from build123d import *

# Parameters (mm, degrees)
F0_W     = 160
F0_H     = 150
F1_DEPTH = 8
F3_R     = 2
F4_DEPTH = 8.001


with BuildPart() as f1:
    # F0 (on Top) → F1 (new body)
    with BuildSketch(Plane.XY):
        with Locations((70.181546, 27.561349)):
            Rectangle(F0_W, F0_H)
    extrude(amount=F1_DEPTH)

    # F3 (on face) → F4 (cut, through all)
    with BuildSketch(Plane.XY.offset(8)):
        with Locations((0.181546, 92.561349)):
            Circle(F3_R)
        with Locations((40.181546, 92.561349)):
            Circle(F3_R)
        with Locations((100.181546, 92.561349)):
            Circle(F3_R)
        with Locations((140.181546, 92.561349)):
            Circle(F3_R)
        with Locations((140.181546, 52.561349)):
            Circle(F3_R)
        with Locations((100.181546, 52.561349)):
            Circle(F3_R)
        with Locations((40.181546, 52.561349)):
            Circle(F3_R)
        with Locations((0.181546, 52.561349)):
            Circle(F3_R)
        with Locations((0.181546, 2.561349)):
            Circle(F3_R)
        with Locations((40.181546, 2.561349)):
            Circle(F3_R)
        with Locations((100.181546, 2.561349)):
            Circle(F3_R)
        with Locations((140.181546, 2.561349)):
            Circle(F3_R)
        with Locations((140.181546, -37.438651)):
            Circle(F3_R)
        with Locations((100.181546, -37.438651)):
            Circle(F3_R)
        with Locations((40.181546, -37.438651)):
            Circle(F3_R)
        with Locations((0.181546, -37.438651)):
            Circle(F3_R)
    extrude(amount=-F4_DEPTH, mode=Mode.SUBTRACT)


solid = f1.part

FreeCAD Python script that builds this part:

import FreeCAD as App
import Part
import Sketcher
Q = App.Units.Quantity

doc = App.newDocument("Part")
body = doc.addObject("PartDesign::Body", "Body")

# Sketch on XY plane
sketch1 = body.newObject("Sketcher::SketchObject", "Sketch")
sketch1.AttachmentSupport = (doc.getObject("XY_Plane"), [""])
sketch1.MapMode = "FlatFace"
sketch1.addGeometry([
    Part.LineSegment(App.Vector(-9.818454, 102.561349, 0), App.Vector(-9.818454, -47.438651, 0)),
    Part.LineSegment(App.Vector(-9.818454, -47.438651, 0), App.Vector(150.181546, -47.438651, 0)),
    Part.LineSegment(App.Vector(150.181546, -47.438651, 0), App.Vector(150.181546, 102.561349, 0)),
    Part.LineSegment(App.Vector(150.181546, 102.561349, 0), App.Vector(-9.818454, 102.561349, 0)),
], False)
sketch1.addConstraint([
    Sketcher.Constraint("Coincident", 0, 2, 1, 1),
    Sketcher.Constraint("Coincident", 1, 2, 2, 1),
    Sketcher.Constraint("Coincident", 2, 2, 3, 1),
    Sketcher.Constraint("Coincident", 3, 2, 0, 1),
    Sketcher.Constraint("Vertical", 0),
    Sketcher.Constraint("Horizontal", 1),
    Sketcher.Constraint("Vertical", 2),
    Sketcher.Constraint("Horizontal", 3),
    Sketcher.Constraint("DistanceX", 1, 1, 1, 2, Q("160 mm")),
    Sketcher.Constraint("DistanceY", 0, 2, 0, 1, Q("150 mm")),
    Sketcher.Constraint("DistanceY", 0, 2, -1, 1, Q("47.438651 mm")),
    Sketcher.Constraint("DistanceX", 0, 2, -1, 1, Q("9.818454 mm")),
])
pad1 = body.newObject("PartDesign::Pad", "Pad")
pad1.Profile = sketch1
pad1.Length = 8

# Sketch on XY plane
sketch2 = body.newObject("Sketcher::SketchObject", "Sketch001")
sketch2.AttachmentSupport = (doc.getObject("XY_Plane"), [""])
sketch2.MapMode = "FlatFace"
sketch2.AttachmentOffset = App.Placement(App.Vector(0, 0, 8), App.Rotation())
sketch2.addGeometry([
    Part.Circle(App.Vector(0.181546, 92.561349, 0), App.Vector(0, 0, 1), 2),  # 0
    Part.Circle(App.Vector(40.181546, 92.561349, 0), App.Vector(0, 0, 1), 2),  # 1
    Part.Circle(App.Vector(100.181546, 92.561349, 0), App.Vector(0, 0, 1), 2),  # 2
    Part.Circle(App.Vector(140.181546, 92.561349, 0), App.Vector(0, 0, 1), 2),  # 3
    Part.Circle(App.Vector(140.181546, 52.561349, 0), App.Vector(0, 0, 1), 2),  # 4
    Part.Circle(App.Vector(100.181546, 52.561349, 0), App.Vector(0, 0, 1), 2),  # 5
    Part.Circle(App.Vector(40.181546, 52.561349, 0), App.Vector(0, 0, 1), 2),  # 6
    Part.Circle(App.Vector(0.181546, 52.561349, 0), App.Vector(0, 0, 1), 2),  # 7
    Part.Circle(App.Vector(0.181546, 2.561349, 0), App.Vector(0, 0, 1), 2),  # 8
    Part.Circle(App.Vector(40.181546, 2.561349, 0), App.Vector(0, 0, 1), 2),  # 9
    Part.Circle(App.Vector(100.181546, 2.561349, 0), App.Vector(0, 0, 1), 2),  # 10
    Part.Circle(App.Vector(140.181546, 2.561349, 0), App.Vector(0, 0, 1), 2),  # 11
    Part.Circle(App.Vector(140.181546, -37.438651, 0), App.Vector(0, 0, 1), 2),  # 12
    Part.Circle(App.Vector(100.181546, -37.438651, 0), App.Vector(0, 0, 1), 2),  # 13
    Part.Circle(App.Vector(40.181546, -37.438651, 0), App.Vector(0, 0, 1), 2),  # 14
    Part.Circle(App.Vector(0.181546, -37.438651, 0), App.Vector(0, 0, 1), 2),  # 15
], False)
sketch2.addConstraint([
    Sketcher.Constraint("Equal", 0, 1),
    Sketcher.Constraint("Equal", 1, 2),
    Sketcher.Constraint("Equal", 2, 3),
    Sketcher.Constraint("Equal", 3, 4),
    Sketcher.Constraint("Equal", 4, 5),
    Sketcher.Constraint("Equal", 5, 6),
    Sketcher.Constraint("Equal", 6, 7),
    Sketcher.Constraint("Equal", 7, 8),
    Sketcher.Constraint("Equal", 8, 9),
    Sketcher.Constraint("Equal", 9, 10),
    Sketcher.Constraint("Equal", 10, 11),
    Sketcher.Constraint("Equal", 11, 12),
    Sketcher.Constraint("Equal", 12, 13),
    Sketcher.Constraint("Equal", 13, 14),
    Sketcher.Constraint("Equal", 14, 15),
    Sketcher.Constraint("Horizontal", 0, 3, 1, 3),
    Sketcher.Constraint("Horizontal", 1, 3, 2, 3),
    Sketcher.Constraint("Horizontal", 2, 3, 3, 3),
    Sketcher.Constraint("Horizontal", 4, 3, 5, 3),
    Sketcher.Constraint("Horizontal", 5, 3, 6, 3),
    Sketcher.Constraint("Horizontal", 6, 3, 7, 3),
    Sketcher.Constraint("Horizontal", 8, 3, 9, 3),
    Sketcher.Constraint("Horizontal", 9, 3, 10, 3),
    Sketcher.Constraint("Horizontal", 10, 3, 11, 3),
    Sketcher.Constraint("Horizontal", 12, 3, 13, 3),
    Sketcher.Constraint("Horizontal", 13, 3, 14, 3),
    Sketcher.Constraint("Horizontal", 14, 3, 15, 3),
    Sketcher.Constraint("Vertical", 3, 3, 4, 3),
    Sketcher.Constraint("Vertical", 2, 3, 5, 3),
    Sketcher.Constraint("Vertical", 1, 3, 6, 3),
    Sketcher.Constraint("Vertical", 0, 3, 7, 3),
    Sketcher.Constraint("Vertical", 7, 3, 8, 3),
    Sketcher.Constraint("Vertical", 6, 3, 9, 3),
    Sketcher.Constraint("Vertical", 5, 3, 10, 3),
    Sketcher.Constraint("Vertical", 4, 3, 11, 3),
    Sketcher.Constraint("Vertical", 11, 3, 12, 3),
    Sketcher.Constraint("Vertical", 10, 3, 13, 3),
    Sketcher.Constraint("Vertical", 9, 3, 14, 3),
    Sketcher.Constraint("Vertical", 8, 3, 15, 3),
    Sketcher.Constraint("Diameter", 0, Q("4 mm")),
    Sketcher.Constraint("DistanceX", 0, 3, 1, 3, Q("40 mm")),
    Sketcher.Constraint("DistanceX", 1, 3, 2, 3, Q("60 mm")),
    Sketcher.Constraint("DistanceX", 2, 3, 3, 3, Q("40 mm")),
    Sketcher.Constraint("DistanceY", 4, 3, 3, 3, Q("40 mm")),
    Sketcher.Constraint("DistanceY", 8, 3, 7, 3, Q("50 mm")),
    Sketcher.Constraint("DistanceY", 12, 3, 11, 3, Q("40 mm")),
    Sketcher.Constraint("DistanceY", -1, 1, 0, 3, Q("92.561349 mm")),
    Sketcher.Constraint("DistanceX", -1, 1, 0, 3, Q("0.181546 mm")),
])
pocket1 = body.newObject("PartDesign::Pocket", "Pocket")
pocket1.Profile = sketch2
pocket1.Type = "ThroughAll"

doc.recompute()
